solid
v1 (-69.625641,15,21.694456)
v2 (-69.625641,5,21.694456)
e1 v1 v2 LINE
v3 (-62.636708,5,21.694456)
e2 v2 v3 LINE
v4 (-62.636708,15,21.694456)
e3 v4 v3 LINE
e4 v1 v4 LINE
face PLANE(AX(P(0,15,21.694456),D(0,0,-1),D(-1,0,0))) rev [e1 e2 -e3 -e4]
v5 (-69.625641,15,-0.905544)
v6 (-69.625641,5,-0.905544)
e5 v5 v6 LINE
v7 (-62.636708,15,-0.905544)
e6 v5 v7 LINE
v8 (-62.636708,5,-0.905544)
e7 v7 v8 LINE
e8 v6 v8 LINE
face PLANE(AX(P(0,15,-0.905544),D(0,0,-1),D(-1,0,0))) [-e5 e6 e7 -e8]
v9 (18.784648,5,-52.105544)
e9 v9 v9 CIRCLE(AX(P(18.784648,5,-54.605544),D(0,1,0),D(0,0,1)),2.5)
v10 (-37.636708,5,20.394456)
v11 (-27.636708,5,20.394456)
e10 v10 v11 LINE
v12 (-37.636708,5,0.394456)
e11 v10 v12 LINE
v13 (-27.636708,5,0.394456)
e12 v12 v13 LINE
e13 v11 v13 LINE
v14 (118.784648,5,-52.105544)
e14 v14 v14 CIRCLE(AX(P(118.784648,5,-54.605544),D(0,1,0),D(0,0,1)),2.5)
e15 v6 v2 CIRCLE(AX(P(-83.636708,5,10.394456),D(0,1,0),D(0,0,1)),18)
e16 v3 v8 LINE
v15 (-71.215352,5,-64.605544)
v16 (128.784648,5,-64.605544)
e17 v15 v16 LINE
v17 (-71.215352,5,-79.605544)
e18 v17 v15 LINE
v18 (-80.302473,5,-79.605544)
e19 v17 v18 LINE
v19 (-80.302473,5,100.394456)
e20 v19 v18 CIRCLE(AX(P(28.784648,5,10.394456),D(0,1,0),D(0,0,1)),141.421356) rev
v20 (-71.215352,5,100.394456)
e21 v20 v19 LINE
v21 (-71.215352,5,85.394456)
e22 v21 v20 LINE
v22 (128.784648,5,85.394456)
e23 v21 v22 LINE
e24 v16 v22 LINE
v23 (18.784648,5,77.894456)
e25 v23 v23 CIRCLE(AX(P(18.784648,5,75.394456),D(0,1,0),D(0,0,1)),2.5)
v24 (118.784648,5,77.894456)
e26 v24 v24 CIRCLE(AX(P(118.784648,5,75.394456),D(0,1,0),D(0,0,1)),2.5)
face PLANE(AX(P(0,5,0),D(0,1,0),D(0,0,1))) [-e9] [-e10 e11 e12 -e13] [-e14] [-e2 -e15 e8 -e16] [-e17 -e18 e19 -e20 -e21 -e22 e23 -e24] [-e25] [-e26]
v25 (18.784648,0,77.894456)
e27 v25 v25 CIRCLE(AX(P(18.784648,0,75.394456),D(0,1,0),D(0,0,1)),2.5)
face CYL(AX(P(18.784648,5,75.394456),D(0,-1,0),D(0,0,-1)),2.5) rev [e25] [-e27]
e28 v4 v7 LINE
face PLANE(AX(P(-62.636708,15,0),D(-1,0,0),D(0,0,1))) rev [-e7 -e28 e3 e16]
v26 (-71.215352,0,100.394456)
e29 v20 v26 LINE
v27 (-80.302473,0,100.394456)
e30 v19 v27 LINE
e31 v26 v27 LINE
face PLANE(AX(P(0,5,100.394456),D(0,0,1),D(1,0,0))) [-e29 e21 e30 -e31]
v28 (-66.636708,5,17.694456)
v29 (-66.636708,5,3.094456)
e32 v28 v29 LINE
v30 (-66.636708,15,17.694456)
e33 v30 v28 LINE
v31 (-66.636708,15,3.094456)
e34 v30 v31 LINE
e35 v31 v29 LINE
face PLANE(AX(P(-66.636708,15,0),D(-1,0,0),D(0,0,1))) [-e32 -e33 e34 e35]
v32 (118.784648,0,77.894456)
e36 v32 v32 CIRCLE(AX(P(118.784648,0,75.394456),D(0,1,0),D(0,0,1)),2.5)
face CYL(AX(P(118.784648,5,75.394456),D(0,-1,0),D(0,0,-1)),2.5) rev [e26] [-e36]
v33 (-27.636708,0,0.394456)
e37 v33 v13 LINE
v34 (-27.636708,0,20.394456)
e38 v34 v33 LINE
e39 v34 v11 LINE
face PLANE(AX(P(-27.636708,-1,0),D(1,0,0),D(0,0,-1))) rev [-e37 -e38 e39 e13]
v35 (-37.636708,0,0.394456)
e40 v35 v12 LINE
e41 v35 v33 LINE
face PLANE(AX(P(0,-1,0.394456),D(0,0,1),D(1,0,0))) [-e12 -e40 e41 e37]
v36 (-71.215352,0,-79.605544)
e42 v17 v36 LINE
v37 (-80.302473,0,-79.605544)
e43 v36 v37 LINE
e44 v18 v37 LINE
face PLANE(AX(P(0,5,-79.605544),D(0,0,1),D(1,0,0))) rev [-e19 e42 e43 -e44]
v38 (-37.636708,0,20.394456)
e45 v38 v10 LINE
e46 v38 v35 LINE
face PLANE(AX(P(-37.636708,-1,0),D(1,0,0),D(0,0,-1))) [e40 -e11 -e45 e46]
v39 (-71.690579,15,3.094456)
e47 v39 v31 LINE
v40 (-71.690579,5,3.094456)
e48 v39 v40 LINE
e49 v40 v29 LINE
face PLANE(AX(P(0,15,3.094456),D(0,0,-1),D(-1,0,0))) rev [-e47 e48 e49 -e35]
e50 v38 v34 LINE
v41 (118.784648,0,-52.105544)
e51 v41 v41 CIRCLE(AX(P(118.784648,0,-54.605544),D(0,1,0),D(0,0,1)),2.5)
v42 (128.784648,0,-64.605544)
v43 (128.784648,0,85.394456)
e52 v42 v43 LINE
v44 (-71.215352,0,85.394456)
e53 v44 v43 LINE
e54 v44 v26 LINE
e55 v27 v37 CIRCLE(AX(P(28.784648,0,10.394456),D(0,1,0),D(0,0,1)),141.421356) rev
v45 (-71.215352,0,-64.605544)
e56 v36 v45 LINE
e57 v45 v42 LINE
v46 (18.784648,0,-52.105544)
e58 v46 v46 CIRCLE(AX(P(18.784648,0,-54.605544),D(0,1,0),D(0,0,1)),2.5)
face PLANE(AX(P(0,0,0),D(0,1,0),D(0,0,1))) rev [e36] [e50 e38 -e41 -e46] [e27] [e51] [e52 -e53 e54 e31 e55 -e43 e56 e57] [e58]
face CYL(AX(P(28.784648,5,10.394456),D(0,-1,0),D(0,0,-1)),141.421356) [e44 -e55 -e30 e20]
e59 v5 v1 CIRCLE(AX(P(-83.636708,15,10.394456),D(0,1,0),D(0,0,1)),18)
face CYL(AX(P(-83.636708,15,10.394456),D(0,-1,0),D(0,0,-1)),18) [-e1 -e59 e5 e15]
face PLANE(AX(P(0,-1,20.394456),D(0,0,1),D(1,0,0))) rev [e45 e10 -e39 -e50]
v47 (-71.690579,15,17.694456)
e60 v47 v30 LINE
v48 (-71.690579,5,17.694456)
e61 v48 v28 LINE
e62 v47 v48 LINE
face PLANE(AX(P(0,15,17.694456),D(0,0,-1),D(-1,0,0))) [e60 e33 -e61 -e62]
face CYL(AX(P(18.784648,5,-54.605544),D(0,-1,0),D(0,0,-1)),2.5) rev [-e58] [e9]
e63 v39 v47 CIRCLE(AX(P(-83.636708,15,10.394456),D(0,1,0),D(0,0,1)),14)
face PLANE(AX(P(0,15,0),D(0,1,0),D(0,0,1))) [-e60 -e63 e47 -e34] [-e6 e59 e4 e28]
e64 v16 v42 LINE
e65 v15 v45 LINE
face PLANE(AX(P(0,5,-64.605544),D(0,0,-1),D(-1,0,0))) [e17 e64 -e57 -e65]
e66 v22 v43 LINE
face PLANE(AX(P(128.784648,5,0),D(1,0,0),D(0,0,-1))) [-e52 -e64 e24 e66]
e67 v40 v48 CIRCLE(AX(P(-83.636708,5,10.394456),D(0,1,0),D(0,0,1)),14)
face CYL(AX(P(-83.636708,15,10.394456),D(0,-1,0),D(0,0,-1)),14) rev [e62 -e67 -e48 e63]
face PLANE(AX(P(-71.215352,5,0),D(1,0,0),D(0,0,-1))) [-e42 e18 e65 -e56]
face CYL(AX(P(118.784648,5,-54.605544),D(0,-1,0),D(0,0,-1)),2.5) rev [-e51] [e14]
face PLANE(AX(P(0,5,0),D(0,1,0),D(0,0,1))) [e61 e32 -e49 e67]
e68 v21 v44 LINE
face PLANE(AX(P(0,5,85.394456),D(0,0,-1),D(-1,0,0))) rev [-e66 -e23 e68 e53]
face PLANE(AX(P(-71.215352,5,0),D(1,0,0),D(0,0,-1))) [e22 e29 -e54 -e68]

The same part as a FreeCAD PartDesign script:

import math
import FreeCAD as App
import Part
import Sketcher
from FreeCAD import Vector

doc = App.newDocument("Part")
body = doc.addObject("PartDesign::Body", "Body")

sketch1 = body.newObject("Sketcher::SketchObject", "Sketch")
sketch1.AttachmentSupport = (doc.getObject("XZ_Plane"), [""])
sketch1.MapMode = "FlatFace"
sketch1.addGeometry(Part.LineSegment(Vector(-71.215352, 100.394456, 0), Vector(-71.215352, 85.394456, 0)), False)
sketch1.addGeometry(Part.LineSegment(Vector(-71.215352, 85.394456, 0), Vector(128.784648, 85.394456, 0)), False)
sketch1.addGeometry(Part.LineSegment(Vector(128.784648, 85.394456, 0), Vector(128.784648, -64.605544, 0)), False)
sketch1.addGeometry(Part.LineSegment(Vector(128.784648, -64.605544, 0), Vector(-71.215352, -64.605544, 0)), False)
sketch1.addGeometry(Part.LineSegment(Vector(-71.215352, -64.605544, 0), Vector(-71.215352, -79.605544, 0)), False)
sketch1.addGeometry(Part.LineSegment(Vector(-71.215352, -79.605544, 0), Vector(-80.302473, -79.605544, 0)), False)
sketch1.addGeometry(Part.ArcOfCircle(Part.Circle(Vector(28.784648, 10.394456, 0), Vector(0, 0, 1), 141.421356), math.radians(140.476392), math.radians(219.523608)), False)
sketch1.addGeometry(Part.LineSegment(Vector(-80.302473, 100.394456, 0), Vector(-71.215352, 100.394456, 0)), False)
sketch1.addGeometry(Part.Circle(Vector(18.784648, 75.394456, 0), Vector(0, 0, 1), 2.5), False)
sketch1.addGeometry(Part.Circle(Vector(118.784648, 75.394456, 0), Vector(0, 0, 1), 2.5), False)
sketch1.addGeometry(Part.Circle(Vector(18.784648, -54.605544, 0), Vector(0, 0, 1), 2.5), False)
sketch1.addGeometry(Part.Circle(Vector(118.784648, -54.605544, 0), Vector(0, 0, 1), 2.5), False)
sketch1.addConstraint(Sketcher.Constraint("Coincident", 0, 2, 1, 1))
sketch1.addConstraint(Sketcher.Constraint("Coincident", 1, 2, 2, 1))
sketch1.addConstraint(Sketcher.Constraint("Coincident", 2, 2, 3, 1))
sketch1.addConstraint(Sketcher.Constraint("Coincident", 3, 2, 4, 1))
sketch1.addConstraint(Sketcher.Constraint("Coincident", 4, 2, 5, 1))
sketch1.addConstraint(Sketcher.Constraint("Coincident", 5, 2, 6, 2))
sketch1.addConstraint(Sketcher.Constraint("Coincident", 6, 1, 7, 1))
sketch1.addConstraint(Sketcher.Constraint("Coincident", 7, 2, 0, 1))
sketch1.addConstraint(Sketcher.Constraint("Vertical", 0))
sketch1.addConstraint(Sketcher.Constraint("Horizontal", 1))
sketch1.addConstraint(Sketcher.Constraint("Vertical", 2))
sketch1.addConstraint(Sketcher.Constraint("Horizontal", 3))
sketch1.addConstraint(Sketcher.Constraint("Vertical", 4))
sketch1.addConstraint(Sketcher.Constraint("Horizontal", 5))
sketch1.addConstraint(Sketcher.Constraint("Horizontal", 7))
sketch1.addConstraint(Sketcher.Constraint("Equal", 8, 9))
sketch1.addConstraint(Sketcher.Constraint("Equal", 9, 10))
sketch1.addConstraint(Sketcher.Constraint("Equal", 10, 11))
sketch1.addConstraint(Sketcher.Constraint("Horizontal", 8, 3, 9, 3))
sketch1.addConstraint(Sketcher.Constraint("Horizontal", 10, 3, 11, 3))
sketch1.addConstraint(Sketcher.Constraint("Vertical", 8, 3, 10, 3))
sketch1.addConstraint(Sketcher.Constraint("Vertical", 9, 3, 11, 3))
sketch1.addConstraint(Sketcher.Constraint("Vertical", 0, 2, 3, 2))
sketch1.addConstraint(Sketcher.Constraint("Vertical", 5, 2, 6, 1))
sketch1.addConstraint(Sketcher.Constraint("Equal", 0, 4))
sketch1.addConstraint(Sketcher.Constraint("Diameter", 8, 5.0))
sketch1.addConstraint(Sketcher.Constraint("DistanceX", 1, 1, 1, 2, 200.0))
sketch1.addConstraint(Sketcher.Constraint("DistanceY", 0, 2, 0, 1, 15.0))
sketch1.addConstraint(Sketcher.Constraint("DistanceY", 2, 2, 2, 1, 150.0))
sketch1.addConstraint(Sketcher.Constraint("DistanceX", 8, 3, 6, 3, 10.0))
sketch1.addConstraint(Sketcher.Constraint("DistanceY", 6, 3, 8, 3, 65.0))
sketch1.addConstraint(Sketcher.Constraint("DistanceX", 8, 3, 9, 3, 100.0))
sketch1.addConstraint(Sketcher.Constraint("DistanceY", 10, 3, 6, 3, 65.0))
sketch1.addConstraint(Sketcher.Constraint("DistanceX", 0, 2, 8, 3, 90.0))
sketch1.addConstraint(Sketcher.Constraint("Radius", 6, 141.421356))
sketch1.addConstraint(Sketcher.Constraint("DistanceX", -1, 1, 6, 3, 28.784648))
sketch1.addConstraint(Sketcher.Constraint("DistanceY", -1, 1, 6, 3, 10.394456))
pad1 = body.newObject("PartDesign::Pad", "Pad")
pad1.Profile = sketch1
pad1.Length = 5
pad1.Reversed = True

sketch2 = body.newObject("Sketcher::SketchObject", "Sketch001")
sketch2.AttachmentSupport = (doc.getObject("XZ_Plane"), [""])
sketch2.MapMode = "FlatFace"
sketch2.AttachmentOffset = App.Placement(Vector(0, 0, -5), App.Rotation())
sketch2.addGeometry(Part.LineSegment(Vector(-62.636708, -0.905544, 0), Vector(-69.625641, -0.905544, 0)), False)
sketch2.addGeometry(Part.ArcOfCircle(Part.Circle(Vector(-83.636708, 10.394456, 0), Vector(0, 0, 1), 18), math.radians(180), math.radians(321.113639)), False)
sketch2.addGeometry(Part.ArcOfCircle(Part.Circle(Vector(-83.636708, 10.394456, 0), Vector(0, 0, 1), 18), math.radians(38.886361), math.radians(180)), False)
sketch2.addGeometry(Part.LineSegment(Vector(-69.625641, 21.694456, 0), Vector(-62.636708, 21.694456, 0)), False)
sketch2.addGeometry(Part.LineSegment(Vector(-62.636708, 21.694456, 0), Vector(-62.636708, -0.905544, 0)), False)
sketch2.addGeometry(Part.ArcOfCircle(Part.Circle(Vector(-83.636708, 10.394456, 0), Vector(0, 0, 1), 14), math.radians(180), math.radians(306.182287)), False)
sketch2.addGeometry(Part.ArcOfCircle(Part.Circle(Vector(-83.636708, 10.394456, 0), Vector(0, 0, 1), 14), math.radians(-53.817713), math.radians(-31.428126)), False)
sketch2.addGeometry(Part.LineSegment(Vector(-71.690579, 3.094456, 0), Vector(-66.636708, 3.094456, 0)), False)
sketch2.addGeometry(Part.LineSegment(Vector(-66.636708, 3.094456, 0), Vector(-66.636708, 17.694456, 0)), False)
sketch2.addGeometry(Part.LineSegment(Vector(-66.636708, 17.694456, 0), Vector(-71.690579, 17.694456, 0)), False)
sketch2.addGeometry(Part.ArcOfCircle(Part.Circle(Vector(-83.636708, 10.394456, 0), Vector(0, 0, 1), 14), math.radians(31.428126), math.radians(53.817713)), False)
sketch2.addGeometry(Part.ArcOfCircle(Part.Circle(Vector(-83.636708, 10.394456, 0), Vector(0, 0, 1), 14), math.radians(53.817713), math.radians(180)), False)
sketch2.addConstraint(Sketcher.Constraint("Coincident", 0, 2, 1, 2))
sketch2.addConstraint(Sketcher.Constraint("Tangent", 1, 1, 2, 2))
sketch2.addConstraint(Sketcher.Constraint("Coincident", 2, 1, 3, 1))
sketch2.addConstraint(Sketcher.Constraint("Coincident", 3, 2, 4, 1))
sketch2.addConstraint(Sketcher.Constraint("Coincident", 4, 2, 0, 1))
sketch2.addConstraint(Sketcher.Constraint("Tangent", 5, 2, 6, 1))
sketch2.addConstraint(Sketcher.Constraint("Coincident", 6, 2, 7, 1))
sketch2.addConstraint(Sketcher.Constraint("Coincident", 7, 2, 8, 1))
sketch2.addConstraint(Sketcher.Constraint("Coincident", 8, 2, 9, 1))
sketch2.addConstraint(Sketcher.Constraint("Coincident", 9, 2, 10, 1))
sketch2.addConstraint(Sketcher.Constraint("Tangent", 10, 2, 11, 1))
sketch2.addConstraint(Sketcher.Constraint("Tangent", 11, 2, 5, 1))
sketch2.addConstraint(Sketcher.Constraint("Horizontal", 0))
sketch2.addConstraint(Sketcher.Constraint("Horizontal", 3))
sketch2.addConstraint(Sketcher.Constraint("Vertical", 4))
sketch2.addConstraint(Sketcher.Constraint("Horizontal", 7))
sketch2.addConstraint(Sketcher.Constraint("Vertical", 8))
sketch2.addConstraint(Sketcher.Constraint("Horizontal", 9))
sketch2.addConstraint(Sketcher.Constraint("Coincident", 5, 3, 1, 3))
sketch2.addConstraint(Sketcher.Constraint("Coincident", 10, 3, 1, 3))
sketch2.addConstraint(Sketcher.Constraint("Equal", 1, 2))
sketch2.addConstraint(Sketcher.Constraint("Equal", 5, 6))
sketch2.addConstraint(Sketcher.Constraint("Horizontal", 11, 3, 1, 1))
sketch2.addConstraint(Sketcher.Constraint("Horizontal", 4, 2, 5, 2))
sketch2.addConstraint(Sketcher.Constraint("Horizontal", 3, 2, 10, 2))
sketch2.addConstraint(Sketcher.Constraint("Horizontal", 1, 1, 11, 2))
sketch2.addConstraint(Sketcher.Constraint("Vertical", 0, 2, 2, 1))
sketch2.addConstraint(Sketcher.Constraint("Vertical", 6, 2, 9, 2))
sketch2.addConstraint(Sketcher.Constraint("Radius", 1, 18.0))
sketch2.addConstraint(Sketcher.Constraint("Radius", 5, 14.0))
sketch2.addConstraint(Sketcher.Constraint("DistanceY", 4, 2, 4, 1, 22.6))
sketch2.addConstraint(Sketcher.Constraint("DistanceY", 8, 1, 8, 2, 14.6))
sketch2.addConstraint(Sketcher.Constraint("DistanceX", 1, 3, 3, 2, 21.0))
sketch2.addConstraint(Sketcher.Constraint("DistanceX", 7, 2, 4, 2, 4.0))
sketch2.addConstraint(Sketcher.Constraint("DistanceX", 1, 3, -1, 1, 83.636708))
sketch2.addConstraint(Sketcher.Constraint("DistanceY", -1, 1, 1, 3, 10.394456))
pad2 = body.newObject("PartDesign::Pad", "Pad001")
pad2.Profile = sketch2
pad2.Length = 10
pad2.Reversed = True

sketch3 = body.newObject("Sketcher::SketchObject", "Sketch002")
sketch3.AttachmentSupport = (doc.getObject("XZ_Plane"), [""])
sketch3.MapMode = "FlatFace"
sketch3.AttachmentOffset = App.Placement(Vector(0, 0, -5), App.Rotation())
sketch3.addGeometry(Part.LineSegment(Vector(-37.636708, 0.394456, 0), Vector(-37.636708, 20.394456, 0)), False)
sketch3.addGeometry(Part.LineSegment(Vector(-37.636708, 20.394456, 0), Vector(-27.636708, 20.394456, 0)), False)
sketch3.addGeometry(Part.LineSegment(Vector(-27.636708, 20.394456, 0), Vector(-27.636708, 0.394456, 0)), False)
sketch3.addGeometry(Part.LineSegment(Vector(-27.636708, 0.394456, 0), Vector(-37.636708, 0.394456, 0)), False)
sketch3.addConstraint(Sketcher.Constraint("Coincident", 0, 2, 1, 1))
sketch3.addConstraint(Sketcher.Constraint("Coincident", 1, 2, 2, 1))
sketch3.addConstraint(Sketcher.Constraint("Coincident", 2, 2, 3, 1))
sketch3.addConstraint(Sketcher.Constraint("Coincident", 3, 2, 0, 1))
sketch3.addConstraint(Sketcher.Constraint("Vertical", 0))
sketch3.addConstraint(Sketcher.Constraint("Horizontal", 1))
sketch3.addConstraint(Sketcher.Constraint("Vertical", 2))
sketch3.addConstraint(Sketcher.Constraint("Horizontal", 3))
sketch3.addConstraint(Sketcher.Constraint("DistanceX", 1, 1, 1, 2, 10.0))
sketch3.addConstraint(Sketcher.Constraint("DistanceY", 0, 1, 0, 2, 20.0))
sketch3.addConstraint(Sketcher.Constraint("DistanceX", 0, 2, -1, 1, 37.636708))
sketch3.addConstraint(Sketcher.Constraint("DistanceY", -1, 1, 0, 2, 20.394456))
pocket1 = body.newObject("PartDesign::Pocket", "Pocket")
pocket1.Profile = sketch3
pocket1.Length = 6
pocket1.Reversed = True

doc.recompute()
